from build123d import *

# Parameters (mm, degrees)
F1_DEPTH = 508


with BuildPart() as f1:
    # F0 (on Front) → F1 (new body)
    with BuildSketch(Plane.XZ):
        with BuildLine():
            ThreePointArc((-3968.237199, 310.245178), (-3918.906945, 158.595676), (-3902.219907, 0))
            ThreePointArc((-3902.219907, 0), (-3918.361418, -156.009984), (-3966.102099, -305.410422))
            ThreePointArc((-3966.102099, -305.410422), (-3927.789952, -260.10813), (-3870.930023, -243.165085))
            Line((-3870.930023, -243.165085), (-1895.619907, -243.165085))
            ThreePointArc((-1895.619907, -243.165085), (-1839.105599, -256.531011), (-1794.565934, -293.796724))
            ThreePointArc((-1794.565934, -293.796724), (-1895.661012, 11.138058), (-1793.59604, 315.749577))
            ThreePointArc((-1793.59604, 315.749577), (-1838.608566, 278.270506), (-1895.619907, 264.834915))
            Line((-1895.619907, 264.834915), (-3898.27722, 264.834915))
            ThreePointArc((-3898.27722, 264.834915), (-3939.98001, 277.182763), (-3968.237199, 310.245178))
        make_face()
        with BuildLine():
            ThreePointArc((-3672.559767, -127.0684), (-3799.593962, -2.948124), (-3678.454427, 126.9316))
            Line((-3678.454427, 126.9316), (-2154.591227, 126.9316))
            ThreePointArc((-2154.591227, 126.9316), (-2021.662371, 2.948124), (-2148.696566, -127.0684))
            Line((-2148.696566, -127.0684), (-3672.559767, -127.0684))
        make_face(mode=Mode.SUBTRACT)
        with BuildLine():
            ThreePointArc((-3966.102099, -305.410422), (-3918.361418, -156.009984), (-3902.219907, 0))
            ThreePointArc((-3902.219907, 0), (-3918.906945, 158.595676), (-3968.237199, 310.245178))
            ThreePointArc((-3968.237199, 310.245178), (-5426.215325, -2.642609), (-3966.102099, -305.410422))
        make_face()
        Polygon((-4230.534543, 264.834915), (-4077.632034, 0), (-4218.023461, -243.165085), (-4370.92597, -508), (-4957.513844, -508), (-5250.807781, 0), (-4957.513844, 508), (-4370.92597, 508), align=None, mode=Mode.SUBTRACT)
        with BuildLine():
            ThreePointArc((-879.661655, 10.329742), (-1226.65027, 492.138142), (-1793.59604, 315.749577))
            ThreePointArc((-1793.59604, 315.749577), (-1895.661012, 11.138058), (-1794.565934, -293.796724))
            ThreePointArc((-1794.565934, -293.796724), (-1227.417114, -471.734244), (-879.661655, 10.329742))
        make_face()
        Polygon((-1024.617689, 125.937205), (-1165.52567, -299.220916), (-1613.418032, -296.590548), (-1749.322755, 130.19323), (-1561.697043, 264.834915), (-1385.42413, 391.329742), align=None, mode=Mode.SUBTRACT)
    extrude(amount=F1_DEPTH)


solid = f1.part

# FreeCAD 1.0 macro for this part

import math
import FreeCAD as App
import Part
import Sketcher
from FreeCAD import Vector
Q = App.Units.Quantity


def add_polygon(sketch, points):
    """Adds a closed chain of lines whose ends are joined by coincident constraints."""
    first, n = sketch.GeometryCount, len(points)
    for a, b in zip(points, points[1:] + points[:1]):
        sketch.addGeometry(Part.LineSegment(App.Vector(*a, 0), App.Vector(*b, 0)), False)
    for i in range(n):
        sketch.addConstraint(Sketcher.Constraint("Coincident", first + i, 2, first + (i + 1) % n, 1))

doc = App.newDocument("Part")
body = doc.addObject("PartDesign::Body", "Body")

sketch1 = body.newObject("Sketcher::SketchObject", "Sketch")
sketch1.AttachmentSupport = (doc.getObject("XZ_Plane"), [""])
sketch1.MapMode = "FlatFace"
sketch1.addGeometry(Part.ArcOfCircle(Part.Circle(Vector(-3898.277221, 341.430931, 0), Vector(0, 0, 1), 76.596016), math.radians(-155.97433), math.radians(-89.999999)), False)
sketch1.addGeometry(Part.ArcOfCircle(Part.Circle(Vector(-4664.219907, 0, 0), Vector(0, 0, 1), 762), math.radians(24.02567), math.radians(336.371733)), False)
sketch1.addGeometry(Part.ArcOfCircle(Part.Circle(Vector(-3870.930023, -347.046007, 0), Vector(0, 0, 1), 103.880922), math.radians(90), math.radians(156.371733)), False)
sketch1.addGeometry(Part.LineSegment(Vector(-3870.930023, -243.165085, 0), Vector(-1895.619907, -243.165085, 0)), False)
sketch1.addGeometry(Part.ArcOfCircle(Part.Circle(Vector(-1895.619908, -369.326007, 0), Vector(0, 0, 1), 126.160922), math.radians(36.775), math.radians(90)), False)
sketch1.addGeometry(Part.ArcOfCircle(Part.Circle(Vector(-1387.661655, 10.329742, 0), Vector(0, 0, 1), 508), math.radians(-143.225001), math.radians(0)), False)
sketch1.addGeometry(Part.ArcOfCircle(Part.Circle(Vector(-1387.661655, 10.329742, 0), Vector(0, 0, 1), 508), math.radians(0), math.radians(143.042666)), False)
sketch1.addGeometry(Part.ArcOfCircle(Part.Circle(Vector(-1895.619906, 392.511026, 0), Vector(0, 0, 1), 127.676111), math.radians(-90), math.radians(-36.957334)), False)
sketch1.addGeometry(Part.LineSegment(Vector(-1895.619907, 264.834915, 0), Vector(-3898.27722, 264.834915, 0)), False)
sketch1.addGeometry(Part.LineSegment(Vector(-2148.696566, -127.0684, 0), Vector(-3672.559767, -127.0684, 0)), False)
sketch1.addGeometry(Part.ArcOfCircle(Part.Circle(Vector(-3672.559767, 0, 0), Vector(0, 0, 1), 127.0684), math.radians(92.658886), math.radians(270)), False)
sketch1.addGeometry(Part.LineSegment(Vector(-3678.454427, 126.9316, 0), Vector(-2154.591227, 126.9316, 0)), False)
sketch1.addGeometry(Part.ArcOfCircle(Part.Circle(Vector(-2148.696566, 0, 0), Vector(0, 0, 1), 127.0684), math.radians(-90), math.radians(92.658886)), False)
add_polygon(sketch1, [(-4370.92597, 508), (-4230.534543, 264.834915), (-4077.632034, 0), (-4218.023461, -243.165085), (-4370.92597, -508), (-4957.513844, -508), (-5250.807781, 0), (-4957.513844, 508)])
add_polygon(sketch1, [(-1385.42413, 391.329742), (-1024.617689, 125.937205), (-1165.52567, -299.220916), (-1613.418032, -296.590548), (-1749.322755, 130.19323), (-1561.697043, 264.834915)])
sketch1.addConstraint([
    Sketcher.Constraint("Tangent", 0, 1, 1, 1),
    Sketcher.Constraint("Tangent", 1, 2, 2, 2),
    Sketcher.Constraint("Tangent", 2, 1, 3, 1),
    Sketcher.Constraint("Tangent", 3, 2, 4, 2),
    Sketcher.Constraint("Tangent", 4, 1, 5, 1),
    Sketcher.Constraint("Coincident", 5, 2, 6, 1),
    Sketcher.Constraint("Tangent", 6, 2, 7, 2),
    Sketcher.Constraint("Tangent", 7, 1, 8, 1),
    Sketcher.Constraint("Tangent", 8, 2, 0, 2),
    Sketcher.Constraint("Tangent", 9, 2, 10, 2),
    Sketcher.Constraint("Coincident", 10, 1, 11, 1),
    Sketcher.Constraint("Coincident", 11, 2, 12, 2),
    Sketcher.Constraint("Tangent", 12, 1, 9, 1),
    Sketcher.Constraint("Horizontal", 3),
    Sketcher.Constraint("Horizontal", 8),
    Sketcher.Constraint("Horizontal", 9),
    Sketcher.Constraint("Horizontal", 11),
    Sketcher.Constraint("Horizontal", 17),
    Sketcher.Constraint("Horizontal", 20),
    Sketcher.Constraint("Coincident", 6, 3, 5, 3),
    Sketcher.Constraint("Equal", 10, 12),
    Sketcher.Constraint("Symmetric", 17, 2, 19, 2, -1),
    Sketcher.Constraint("PointOnObject", 1, 3, -1),
    Sketcher.Constraint("PointOnObject", 10, 3, -1),
    Sketcher.Constraint("PointOnObject", 14, 2, -1),
    Sketcher.Constraint("PointOnObject", 18, 2, -1),
    Sketcher.Constraint("Parallel", 13, 14),
    Sketcher.Constraint("Parallel", 15, 16),
    Sketcher.Constraint("Parallel", 14, 18),
    Sketcher.Constraint("Parallel", 16, 19),
    Sketcher.Constraint("Parallel", 25, 26),
    Sketcher.Constraint("Horizontal", 6, 3, 5, 2),
    Sketcher.Constraint("Horizontal", 8, 2, 13, 2),
    Sketcher.Constraint("Horizontal", 3, 2, 15, 2),
    Sketcher.Constraint("Horizontal", 13, 2, 25, 2),
    Sketcher.Constraint("Vertical", 4, 3, 7, 3),
    Sketcher.Constraint("Equal", 13, 15),
    Sketcher.Constraint("Equal", 21, 22),
    Sketcher.Constraint("Equal", 22, 23),
    Sketcher.Constraint("Equal", 23, 24),
    Sketcher.Constraint("Radius", 1, Q("30 in")),
    Sketcher.Constraint("Radius", 5, Q("20 in")),
    Sketcher.Constraint("DistanceY", 16, 2, -1, 1, Q("20 in")),
    Sketcher.Constraint("Angle", 13, Q("-60 deg")),
    Sketcher.Constraint("DistanceX", 1, 3, 4, 3, Q("109 in")),
    Sketcher.Constraint("DistanceY", 9, 2, 10, 1, Q("10 in")),
    Sketcher.Constraint("DistanceY", 5, 3, 26, 2, Q("15 in")),
    Sketcher.Constraint("Radius", 2, Q("4.0898001 in")),
    Sketcher.Constraint("Radius", 10, 127.0684),
    Sketcher.Constraint("Radius", 7, 127.676111),
    Sketcher.Constraint("DistanceX", 9, 2, 9, 1, 1523.863201),
    Sketcher.Constraint("DistanceY", 4, 1, -1, 1, Q("11.5668002 in")),
    Sketcher.Constraint("Radius", 0, 76.596016),
    Sketcher.Constraint("Radius", 4, 126.160922),
    Sketcher.Constraint("DistanceX", 18, 2, 15, 2, Q("40.6608 in")),
    Sketcher.Constraint("DistanceX", 0, 1, -1, 1, 3968.237199),
    Sketcher.Constraint("DistanceX", 24, 2, 6, 3, 361.6611),
    Sketcher.Constraint("Distance", 25, 230.936769),
    Sketcher.Constraint("DistanceX", 15, 2, -1, 1, 4218.023461),
    Sketcher.Constraint("DistanceX", 21, 2, -1, 1, 1024.617689),
    Sketcher.Constraint("DistanceX", 22, 2, -1, 1, 1165.52567),
    Sketcher.Constraint("DistanceX", 23, 2, -1, 1, 1613.418032),
    Sketcher.Constraint("DistanceY", 23, 2, -1, 1, 296.590548),
    Sketcher.Constraint("DistanceX", 1, 3, 10, 3, 991.66014),
])
pad1 = body.newObject("PartDesign::Pad", "Pad")
pad1.Profile = sketch1
pad1.Length = Q("20 in")

doc.recompute()
